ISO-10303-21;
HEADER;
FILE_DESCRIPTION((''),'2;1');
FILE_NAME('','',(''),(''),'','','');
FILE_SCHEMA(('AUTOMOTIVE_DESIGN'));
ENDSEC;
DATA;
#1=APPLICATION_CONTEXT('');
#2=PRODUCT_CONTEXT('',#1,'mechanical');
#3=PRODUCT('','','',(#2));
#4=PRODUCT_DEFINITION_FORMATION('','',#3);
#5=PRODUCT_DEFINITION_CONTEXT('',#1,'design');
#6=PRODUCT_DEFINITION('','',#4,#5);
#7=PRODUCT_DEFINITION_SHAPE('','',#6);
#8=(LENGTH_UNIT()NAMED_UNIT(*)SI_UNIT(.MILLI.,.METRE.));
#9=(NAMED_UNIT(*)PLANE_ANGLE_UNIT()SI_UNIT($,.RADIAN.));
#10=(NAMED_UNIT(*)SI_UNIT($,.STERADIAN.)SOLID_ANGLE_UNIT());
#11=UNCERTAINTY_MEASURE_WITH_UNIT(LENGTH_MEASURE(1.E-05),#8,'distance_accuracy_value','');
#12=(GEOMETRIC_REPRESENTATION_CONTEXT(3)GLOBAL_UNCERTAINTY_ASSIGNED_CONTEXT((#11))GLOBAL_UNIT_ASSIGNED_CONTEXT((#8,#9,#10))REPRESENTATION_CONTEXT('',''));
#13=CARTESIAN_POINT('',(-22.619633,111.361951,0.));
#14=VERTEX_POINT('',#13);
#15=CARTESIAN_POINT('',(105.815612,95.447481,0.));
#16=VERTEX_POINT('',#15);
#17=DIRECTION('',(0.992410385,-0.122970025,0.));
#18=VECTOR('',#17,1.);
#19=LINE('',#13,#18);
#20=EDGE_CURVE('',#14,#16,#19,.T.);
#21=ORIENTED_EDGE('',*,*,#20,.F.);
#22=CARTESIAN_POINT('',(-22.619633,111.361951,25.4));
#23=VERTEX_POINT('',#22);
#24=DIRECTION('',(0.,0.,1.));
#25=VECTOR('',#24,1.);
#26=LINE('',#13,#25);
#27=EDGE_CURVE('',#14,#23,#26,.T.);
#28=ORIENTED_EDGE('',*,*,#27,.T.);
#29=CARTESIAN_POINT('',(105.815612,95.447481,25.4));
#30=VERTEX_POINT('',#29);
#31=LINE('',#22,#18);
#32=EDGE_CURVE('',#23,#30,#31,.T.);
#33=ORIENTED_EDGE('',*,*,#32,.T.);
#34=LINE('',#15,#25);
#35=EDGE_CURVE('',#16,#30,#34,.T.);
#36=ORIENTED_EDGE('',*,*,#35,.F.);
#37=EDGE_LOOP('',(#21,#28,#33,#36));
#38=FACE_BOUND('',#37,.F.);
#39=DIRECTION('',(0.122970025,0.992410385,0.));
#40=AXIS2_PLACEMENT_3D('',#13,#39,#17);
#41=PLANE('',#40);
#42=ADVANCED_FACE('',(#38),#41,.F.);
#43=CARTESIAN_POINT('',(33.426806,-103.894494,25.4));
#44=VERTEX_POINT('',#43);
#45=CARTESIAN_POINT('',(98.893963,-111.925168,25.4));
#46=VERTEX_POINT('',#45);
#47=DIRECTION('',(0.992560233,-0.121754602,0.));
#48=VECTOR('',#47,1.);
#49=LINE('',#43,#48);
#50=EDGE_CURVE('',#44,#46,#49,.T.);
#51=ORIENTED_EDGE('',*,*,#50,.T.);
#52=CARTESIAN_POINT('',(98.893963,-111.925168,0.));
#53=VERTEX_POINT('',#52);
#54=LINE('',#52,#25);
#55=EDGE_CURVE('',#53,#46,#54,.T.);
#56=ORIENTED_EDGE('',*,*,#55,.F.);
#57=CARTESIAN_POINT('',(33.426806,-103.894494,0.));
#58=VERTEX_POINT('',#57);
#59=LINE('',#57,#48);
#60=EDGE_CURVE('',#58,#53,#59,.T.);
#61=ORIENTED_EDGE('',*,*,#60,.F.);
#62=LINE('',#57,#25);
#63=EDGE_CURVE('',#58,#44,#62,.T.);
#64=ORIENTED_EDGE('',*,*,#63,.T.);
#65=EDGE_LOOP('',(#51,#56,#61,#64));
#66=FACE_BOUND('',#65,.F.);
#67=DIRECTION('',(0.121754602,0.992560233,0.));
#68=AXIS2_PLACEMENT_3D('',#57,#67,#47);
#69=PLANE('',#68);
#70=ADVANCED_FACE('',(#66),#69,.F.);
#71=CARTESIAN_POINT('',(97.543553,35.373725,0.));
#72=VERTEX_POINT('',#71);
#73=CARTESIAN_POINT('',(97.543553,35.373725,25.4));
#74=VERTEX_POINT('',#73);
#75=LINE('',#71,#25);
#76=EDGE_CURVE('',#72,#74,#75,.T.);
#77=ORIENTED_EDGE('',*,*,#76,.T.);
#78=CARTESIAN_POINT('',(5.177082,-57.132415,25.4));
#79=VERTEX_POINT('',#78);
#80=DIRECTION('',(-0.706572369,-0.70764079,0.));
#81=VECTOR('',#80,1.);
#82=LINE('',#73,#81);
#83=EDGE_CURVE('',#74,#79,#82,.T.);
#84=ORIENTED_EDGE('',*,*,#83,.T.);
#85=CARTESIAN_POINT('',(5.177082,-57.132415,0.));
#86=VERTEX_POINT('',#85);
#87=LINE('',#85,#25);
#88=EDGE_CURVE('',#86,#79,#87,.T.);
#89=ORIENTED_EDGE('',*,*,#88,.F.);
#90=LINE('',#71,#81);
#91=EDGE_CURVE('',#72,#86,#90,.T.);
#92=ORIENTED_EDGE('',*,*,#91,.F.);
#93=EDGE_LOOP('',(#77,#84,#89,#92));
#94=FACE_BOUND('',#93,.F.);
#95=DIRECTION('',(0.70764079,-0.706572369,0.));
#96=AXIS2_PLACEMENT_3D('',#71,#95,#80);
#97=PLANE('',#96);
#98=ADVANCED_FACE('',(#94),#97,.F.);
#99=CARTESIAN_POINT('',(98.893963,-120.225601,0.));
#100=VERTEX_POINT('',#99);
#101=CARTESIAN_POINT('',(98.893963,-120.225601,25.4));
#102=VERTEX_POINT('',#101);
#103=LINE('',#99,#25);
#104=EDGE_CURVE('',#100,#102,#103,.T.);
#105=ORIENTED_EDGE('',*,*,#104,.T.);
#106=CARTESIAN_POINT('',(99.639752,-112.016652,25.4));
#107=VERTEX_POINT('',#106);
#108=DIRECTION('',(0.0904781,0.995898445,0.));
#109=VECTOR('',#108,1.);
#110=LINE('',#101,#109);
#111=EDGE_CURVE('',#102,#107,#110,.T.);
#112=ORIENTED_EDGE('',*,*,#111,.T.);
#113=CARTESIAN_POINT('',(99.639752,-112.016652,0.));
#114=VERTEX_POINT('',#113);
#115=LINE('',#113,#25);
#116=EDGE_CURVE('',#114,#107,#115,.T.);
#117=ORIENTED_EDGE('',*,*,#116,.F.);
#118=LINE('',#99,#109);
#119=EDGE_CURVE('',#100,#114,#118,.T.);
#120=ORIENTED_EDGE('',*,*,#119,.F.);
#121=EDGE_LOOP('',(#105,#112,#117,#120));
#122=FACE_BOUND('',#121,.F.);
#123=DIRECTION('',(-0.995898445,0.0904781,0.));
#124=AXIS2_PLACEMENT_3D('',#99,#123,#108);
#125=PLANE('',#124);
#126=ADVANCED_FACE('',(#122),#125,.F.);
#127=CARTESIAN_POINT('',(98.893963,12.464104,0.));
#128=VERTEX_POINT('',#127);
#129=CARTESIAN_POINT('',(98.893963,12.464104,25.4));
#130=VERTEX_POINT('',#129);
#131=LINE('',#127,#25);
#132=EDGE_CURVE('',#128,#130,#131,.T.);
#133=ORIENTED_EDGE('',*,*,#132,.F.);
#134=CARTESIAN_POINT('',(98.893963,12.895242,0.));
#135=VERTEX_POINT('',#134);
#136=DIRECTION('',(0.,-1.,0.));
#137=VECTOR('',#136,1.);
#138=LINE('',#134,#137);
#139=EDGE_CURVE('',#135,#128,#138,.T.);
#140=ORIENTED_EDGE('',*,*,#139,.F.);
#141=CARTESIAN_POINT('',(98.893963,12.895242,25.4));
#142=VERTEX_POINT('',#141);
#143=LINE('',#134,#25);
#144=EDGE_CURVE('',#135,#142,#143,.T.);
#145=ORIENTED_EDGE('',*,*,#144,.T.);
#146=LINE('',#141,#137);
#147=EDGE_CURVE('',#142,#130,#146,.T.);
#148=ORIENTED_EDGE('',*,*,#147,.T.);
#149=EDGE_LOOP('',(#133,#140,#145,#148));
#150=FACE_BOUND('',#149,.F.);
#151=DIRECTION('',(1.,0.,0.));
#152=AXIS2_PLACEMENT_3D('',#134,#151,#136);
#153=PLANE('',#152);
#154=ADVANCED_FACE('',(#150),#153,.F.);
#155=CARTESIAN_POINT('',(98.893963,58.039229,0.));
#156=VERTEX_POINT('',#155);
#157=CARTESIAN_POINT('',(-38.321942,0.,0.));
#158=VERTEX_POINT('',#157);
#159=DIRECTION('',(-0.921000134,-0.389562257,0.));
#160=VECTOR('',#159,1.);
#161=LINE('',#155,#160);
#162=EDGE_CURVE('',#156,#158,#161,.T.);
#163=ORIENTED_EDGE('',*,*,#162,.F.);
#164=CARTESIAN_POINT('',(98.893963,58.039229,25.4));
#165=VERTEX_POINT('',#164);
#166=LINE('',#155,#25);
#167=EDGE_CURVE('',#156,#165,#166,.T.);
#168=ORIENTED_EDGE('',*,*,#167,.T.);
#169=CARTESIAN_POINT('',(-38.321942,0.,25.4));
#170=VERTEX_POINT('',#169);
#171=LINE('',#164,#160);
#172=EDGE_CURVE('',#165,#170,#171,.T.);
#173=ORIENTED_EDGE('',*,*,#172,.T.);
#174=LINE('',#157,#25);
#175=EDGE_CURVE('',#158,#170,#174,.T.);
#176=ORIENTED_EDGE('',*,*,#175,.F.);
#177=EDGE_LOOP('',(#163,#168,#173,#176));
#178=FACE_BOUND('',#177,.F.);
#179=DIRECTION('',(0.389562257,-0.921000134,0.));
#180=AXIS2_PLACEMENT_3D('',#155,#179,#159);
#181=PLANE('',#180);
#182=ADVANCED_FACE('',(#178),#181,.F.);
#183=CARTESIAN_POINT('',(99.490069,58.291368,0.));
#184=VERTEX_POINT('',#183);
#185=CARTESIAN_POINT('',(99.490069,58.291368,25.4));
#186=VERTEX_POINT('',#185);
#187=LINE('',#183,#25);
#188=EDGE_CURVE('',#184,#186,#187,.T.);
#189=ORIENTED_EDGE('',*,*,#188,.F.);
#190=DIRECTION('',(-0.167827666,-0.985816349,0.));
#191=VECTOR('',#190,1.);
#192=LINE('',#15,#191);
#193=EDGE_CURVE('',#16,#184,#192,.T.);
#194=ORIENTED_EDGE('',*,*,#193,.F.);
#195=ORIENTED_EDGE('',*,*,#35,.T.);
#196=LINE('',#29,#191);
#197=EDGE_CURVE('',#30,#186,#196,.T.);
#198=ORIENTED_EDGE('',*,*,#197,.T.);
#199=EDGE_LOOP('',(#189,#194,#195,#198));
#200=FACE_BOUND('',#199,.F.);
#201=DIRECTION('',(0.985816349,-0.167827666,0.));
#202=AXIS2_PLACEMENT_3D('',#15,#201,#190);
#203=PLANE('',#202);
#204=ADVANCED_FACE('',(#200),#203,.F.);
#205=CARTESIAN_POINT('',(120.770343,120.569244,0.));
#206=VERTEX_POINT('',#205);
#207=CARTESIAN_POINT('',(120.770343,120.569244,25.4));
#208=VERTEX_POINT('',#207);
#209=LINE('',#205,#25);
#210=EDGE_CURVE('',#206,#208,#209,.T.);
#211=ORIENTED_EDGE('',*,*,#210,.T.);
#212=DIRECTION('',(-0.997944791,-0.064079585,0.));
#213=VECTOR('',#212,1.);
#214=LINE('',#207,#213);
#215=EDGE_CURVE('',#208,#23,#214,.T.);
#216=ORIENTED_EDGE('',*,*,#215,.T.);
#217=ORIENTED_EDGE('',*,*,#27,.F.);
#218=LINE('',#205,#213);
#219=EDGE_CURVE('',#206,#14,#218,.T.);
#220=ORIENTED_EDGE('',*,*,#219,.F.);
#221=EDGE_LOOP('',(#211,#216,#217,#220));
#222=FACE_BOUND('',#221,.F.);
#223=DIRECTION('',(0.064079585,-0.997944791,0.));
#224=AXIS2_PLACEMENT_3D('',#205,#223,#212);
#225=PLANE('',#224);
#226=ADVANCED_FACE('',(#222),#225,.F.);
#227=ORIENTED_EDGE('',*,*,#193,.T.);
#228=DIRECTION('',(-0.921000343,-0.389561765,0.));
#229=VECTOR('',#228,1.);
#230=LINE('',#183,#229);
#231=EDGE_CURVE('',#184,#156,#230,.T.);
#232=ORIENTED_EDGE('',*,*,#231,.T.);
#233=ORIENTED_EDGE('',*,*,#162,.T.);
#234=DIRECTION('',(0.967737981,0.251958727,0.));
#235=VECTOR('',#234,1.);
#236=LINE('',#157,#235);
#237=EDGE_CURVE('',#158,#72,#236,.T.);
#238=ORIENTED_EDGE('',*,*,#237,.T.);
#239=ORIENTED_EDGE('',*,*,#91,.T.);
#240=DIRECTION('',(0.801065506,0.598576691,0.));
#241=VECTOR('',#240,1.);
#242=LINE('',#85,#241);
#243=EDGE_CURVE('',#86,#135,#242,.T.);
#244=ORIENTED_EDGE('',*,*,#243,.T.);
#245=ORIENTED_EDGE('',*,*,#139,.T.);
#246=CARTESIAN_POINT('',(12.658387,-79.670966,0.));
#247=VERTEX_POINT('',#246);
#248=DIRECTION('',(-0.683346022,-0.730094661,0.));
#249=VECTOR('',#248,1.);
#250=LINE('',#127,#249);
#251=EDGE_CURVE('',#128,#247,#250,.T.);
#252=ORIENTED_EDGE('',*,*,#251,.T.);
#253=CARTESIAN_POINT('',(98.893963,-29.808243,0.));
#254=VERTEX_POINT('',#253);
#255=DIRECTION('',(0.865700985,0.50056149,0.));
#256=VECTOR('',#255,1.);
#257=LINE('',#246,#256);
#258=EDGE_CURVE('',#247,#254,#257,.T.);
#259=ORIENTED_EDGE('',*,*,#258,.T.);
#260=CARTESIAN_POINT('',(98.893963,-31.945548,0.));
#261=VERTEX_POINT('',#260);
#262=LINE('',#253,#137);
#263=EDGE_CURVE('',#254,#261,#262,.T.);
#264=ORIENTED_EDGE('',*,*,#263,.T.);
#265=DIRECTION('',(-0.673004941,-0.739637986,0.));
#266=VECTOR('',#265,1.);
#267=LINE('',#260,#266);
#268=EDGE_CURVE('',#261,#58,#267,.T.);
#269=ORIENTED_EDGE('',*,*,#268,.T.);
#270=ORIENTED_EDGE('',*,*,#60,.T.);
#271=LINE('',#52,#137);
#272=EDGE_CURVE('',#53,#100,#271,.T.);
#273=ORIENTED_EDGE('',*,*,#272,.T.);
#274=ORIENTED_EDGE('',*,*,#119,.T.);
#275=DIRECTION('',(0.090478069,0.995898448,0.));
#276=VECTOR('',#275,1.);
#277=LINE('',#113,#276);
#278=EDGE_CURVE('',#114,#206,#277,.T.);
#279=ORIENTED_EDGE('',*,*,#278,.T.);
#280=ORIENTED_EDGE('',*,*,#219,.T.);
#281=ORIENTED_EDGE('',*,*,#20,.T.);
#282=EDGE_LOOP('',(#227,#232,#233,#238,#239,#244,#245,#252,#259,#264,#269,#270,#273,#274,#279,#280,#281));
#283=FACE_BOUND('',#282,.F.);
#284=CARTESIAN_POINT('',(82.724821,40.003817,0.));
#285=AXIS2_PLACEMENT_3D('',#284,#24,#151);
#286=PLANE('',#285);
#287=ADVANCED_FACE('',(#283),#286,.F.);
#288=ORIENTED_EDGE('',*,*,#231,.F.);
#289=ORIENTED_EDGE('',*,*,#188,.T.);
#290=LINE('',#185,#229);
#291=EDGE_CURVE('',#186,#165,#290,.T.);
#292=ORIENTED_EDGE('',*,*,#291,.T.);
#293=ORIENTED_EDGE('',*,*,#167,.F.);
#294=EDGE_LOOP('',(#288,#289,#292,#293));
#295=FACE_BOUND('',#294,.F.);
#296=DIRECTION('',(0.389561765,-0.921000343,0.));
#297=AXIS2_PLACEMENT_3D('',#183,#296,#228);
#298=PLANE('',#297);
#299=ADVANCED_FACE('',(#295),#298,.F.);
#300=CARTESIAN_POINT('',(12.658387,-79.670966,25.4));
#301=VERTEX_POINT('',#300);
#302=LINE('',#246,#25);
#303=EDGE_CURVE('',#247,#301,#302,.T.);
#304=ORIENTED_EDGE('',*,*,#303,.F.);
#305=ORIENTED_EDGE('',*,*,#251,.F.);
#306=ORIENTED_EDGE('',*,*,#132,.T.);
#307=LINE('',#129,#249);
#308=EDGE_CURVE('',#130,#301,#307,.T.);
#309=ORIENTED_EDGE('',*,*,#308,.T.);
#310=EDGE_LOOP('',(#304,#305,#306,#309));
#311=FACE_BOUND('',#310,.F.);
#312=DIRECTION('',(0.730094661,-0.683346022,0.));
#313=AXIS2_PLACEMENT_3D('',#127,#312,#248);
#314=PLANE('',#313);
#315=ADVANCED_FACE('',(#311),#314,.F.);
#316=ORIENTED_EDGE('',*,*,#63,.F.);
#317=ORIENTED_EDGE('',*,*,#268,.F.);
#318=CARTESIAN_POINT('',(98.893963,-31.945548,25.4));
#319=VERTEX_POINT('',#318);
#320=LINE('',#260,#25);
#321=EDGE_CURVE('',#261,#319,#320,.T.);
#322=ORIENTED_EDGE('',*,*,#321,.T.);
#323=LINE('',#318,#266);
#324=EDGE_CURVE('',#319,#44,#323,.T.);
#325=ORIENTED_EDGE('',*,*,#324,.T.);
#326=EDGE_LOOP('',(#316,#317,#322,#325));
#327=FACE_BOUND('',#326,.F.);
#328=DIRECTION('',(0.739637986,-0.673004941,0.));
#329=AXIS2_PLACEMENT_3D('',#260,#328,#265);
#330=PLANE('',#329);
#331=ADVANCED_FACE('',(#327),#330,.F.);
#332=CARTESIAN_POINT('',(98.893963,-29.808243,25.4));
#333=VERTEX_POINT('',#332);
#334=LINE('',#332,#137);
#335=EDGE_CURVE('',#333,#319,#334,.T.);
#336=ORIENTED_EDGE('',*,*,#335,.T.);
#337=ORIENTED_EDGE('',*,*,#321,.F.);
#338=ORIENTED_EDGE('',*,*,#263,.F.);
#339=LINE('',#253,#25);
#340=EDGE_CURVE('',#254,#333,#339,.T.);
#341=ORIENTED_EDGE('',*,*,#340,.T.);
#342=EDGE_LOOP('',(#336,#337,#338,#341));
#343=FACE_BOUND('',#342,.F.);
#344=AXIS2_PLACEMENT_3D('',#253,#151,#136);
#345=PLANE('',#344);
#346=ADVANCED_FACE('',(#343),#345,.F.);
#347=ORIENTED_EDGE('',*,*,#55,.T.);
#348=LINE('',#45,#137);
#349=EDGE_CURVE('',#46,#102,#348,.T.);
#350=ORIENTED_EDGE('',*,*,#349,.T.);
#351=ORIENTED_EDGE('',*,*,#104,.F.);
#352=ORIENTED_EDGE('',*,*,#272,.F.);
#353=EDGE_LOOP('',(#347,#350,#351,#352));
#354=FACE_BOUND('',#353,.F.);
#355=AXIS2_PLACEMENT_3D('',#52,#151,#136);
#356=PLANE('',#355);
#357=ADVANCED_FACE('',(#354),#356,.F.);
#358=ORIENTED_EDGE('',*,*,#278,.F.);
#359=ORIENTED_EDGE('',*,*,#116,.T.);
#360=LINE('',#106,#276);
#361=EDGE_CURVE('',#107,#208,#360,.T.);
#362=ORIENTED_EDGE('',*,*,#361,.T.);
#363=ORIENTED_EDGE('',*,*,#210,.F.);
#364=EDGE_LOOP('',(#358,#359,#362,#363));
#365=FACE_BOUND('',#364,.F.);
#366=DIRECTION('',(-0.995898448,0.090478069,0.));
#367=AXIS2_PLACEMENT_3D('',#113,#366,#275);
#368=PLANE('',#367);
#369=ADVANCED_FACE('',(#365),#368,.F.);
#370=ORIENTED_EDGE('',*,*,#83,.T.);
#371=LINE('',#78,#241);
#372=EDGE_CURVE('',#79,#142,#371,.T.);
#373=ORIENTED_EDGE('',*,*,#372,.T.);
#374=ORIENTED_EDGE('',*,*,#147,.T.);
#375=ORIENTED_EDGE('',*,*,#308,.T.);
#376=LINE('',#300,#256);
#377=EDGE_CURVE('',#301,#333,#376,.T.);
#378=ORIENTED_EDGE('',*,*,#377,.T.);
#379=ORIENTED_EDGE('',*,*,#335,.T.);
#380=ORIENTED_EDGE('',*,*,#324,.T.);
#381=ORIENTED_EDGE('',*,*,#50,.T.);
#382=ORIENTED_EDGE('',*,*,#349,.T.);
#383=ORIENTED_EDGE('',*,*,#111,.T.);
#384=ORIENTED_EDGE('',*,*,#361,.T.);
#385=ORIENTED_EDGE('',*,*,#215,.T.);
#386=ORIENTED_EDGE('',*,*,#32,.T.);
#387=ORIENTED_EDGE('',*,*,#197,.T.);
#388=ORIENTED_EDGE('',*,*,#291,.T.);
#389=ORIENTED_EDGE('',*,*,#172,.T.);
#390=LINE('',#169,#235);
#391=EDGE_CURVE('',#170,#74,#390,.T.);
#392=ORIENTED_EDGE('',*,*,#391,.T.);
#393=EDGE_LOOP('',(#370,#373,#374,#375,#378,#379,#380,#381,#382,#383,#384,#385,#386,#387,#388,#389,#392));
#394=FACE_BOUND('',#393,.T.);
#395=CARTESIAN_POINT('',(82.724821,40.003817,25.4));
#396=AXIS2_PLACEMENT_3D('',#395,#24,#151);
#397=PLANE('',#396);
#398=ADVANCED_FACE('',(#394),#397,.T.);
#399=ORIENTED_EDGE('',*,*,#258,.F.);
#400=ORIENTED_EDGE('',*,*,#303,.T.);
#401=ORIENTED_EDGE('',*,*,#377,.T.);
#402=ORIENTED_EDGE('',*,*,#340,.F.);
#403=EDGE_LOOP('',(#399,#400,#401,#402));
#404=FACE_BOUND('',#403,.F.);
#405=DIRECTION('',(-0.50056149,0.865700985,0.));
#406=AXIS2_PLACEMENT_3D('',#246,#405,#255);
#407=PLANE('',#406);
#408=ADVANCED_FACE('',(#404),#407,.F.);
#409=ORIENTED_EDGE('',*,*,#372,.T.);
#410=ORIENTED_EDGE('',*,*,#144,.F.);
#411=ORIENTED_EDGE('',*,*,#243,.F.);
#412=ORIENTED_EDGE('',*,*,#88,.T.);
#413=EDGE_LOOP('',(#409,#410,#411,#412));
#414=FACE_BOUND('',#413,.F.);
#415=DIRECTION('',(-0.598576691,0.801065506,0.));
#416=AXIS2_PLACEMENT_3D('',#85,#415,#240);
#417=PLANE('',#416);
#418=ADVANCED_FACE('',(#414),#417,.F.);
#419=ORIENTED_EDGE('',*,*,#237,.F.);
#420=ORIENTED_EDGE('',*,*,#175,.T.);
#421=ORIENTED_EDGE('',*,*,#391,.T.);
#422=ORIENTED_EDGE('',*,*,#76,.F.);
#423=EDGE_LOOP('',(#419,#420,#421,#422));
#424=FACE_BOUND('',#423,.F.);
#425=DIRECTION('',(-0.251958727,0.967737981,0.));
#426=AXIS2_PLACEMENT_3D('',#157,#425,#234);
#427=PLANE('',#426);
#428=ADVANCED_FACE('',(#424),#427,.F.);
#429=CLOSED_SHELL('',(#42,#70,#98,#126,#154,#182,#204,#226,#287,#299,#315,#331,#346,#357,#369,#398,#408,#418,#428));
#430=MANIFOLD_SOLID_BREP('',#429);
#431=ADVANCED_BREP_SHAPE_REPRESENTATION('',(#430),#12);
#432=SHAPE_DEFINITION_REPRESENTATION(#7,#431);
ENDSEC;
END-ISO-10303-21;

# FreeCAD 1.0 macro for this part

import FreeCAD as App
import Part
import Sketcher

V = App.Vector
Q = App.Units.Quantity

doc = App.newDocument("Part")
params = doc.addObject("Spreadsheet::Sheet", "Params")
for row, (alias, value) in enumerate([
    ("pad1_length", "1 in"),
], start=1):
    params.set(f"A{row}", alias)
    params.set(f"B{row}", "=" + value)
    params.setAlias(f"B{row}", alias)

body = doc.addObject("PartDesign::Body", "Body")

# Sketch on XY plane
sketch1 = doc.addObject("Sketcher::SketchObject", "Sketch")
body.addObject(sketch1)
sketch1.AttachmentSupport = (doc.XY_Plane, [""])
sketch1.MapMode = "FlatFace"
sketch1.addGeometry(Part.LineSegment(V(99.49, 58.29, 0), V(98.89, 58.04, 0)), False)
sketch1.addGeometry(Part.LineSegment(V(98.89, 58.04, 0), V(-38.32, 0, 0)), False)
sketch1.addGeometry(Part.LineSegment(V(-38.32, 0, 0), V(97.54, 35.37, 0)), False)
sketch1.addGeometry(Part.LineSegment(V(97.54, 35.37, 0), V(5.18, -57.13, 0)), False)
sketch1.addGeometry(Part.LineSegment(V(5.18, -57.13, 0), V(98.89, 12.9, 0)), False)
sketch1.addGeometry(Part.LineSegment(V(98.89, 12.9, 0), V(98.89, 12.46, 0)), False)
sketch1.addGeometry(Part.LineSegment(V(98.89, 12.46, 0), V(12.66, -79.67, 0)), False)
sketch1.addGeometry(Part.LineSegment(V(12.66, -79.67, 0), V(98.89, -29.81, 0)), False)
sketch1.addGeometry(Part.LineSegment(V(98.89, -29.81, 0), V(98.89, -31.95, 0)), False)
sketch1.addGeometry(Part.LineSegment(V(98.89, -31.95, 0), V(33.43, -103.89, 0)), False)
sketch1.addGeometry(Part.LineSegment(V(33.43, -103.89, 0), V(98.89, -111.93, 0)), False)
sketch1.addGeometry(Part.LineSegment(V(98.89, -111.93, 0), V(98.89, -120.23, 0)), False)
sketch1.addGeometry(Part.LineSegment(V(98.89, -120.23, 0), V(99.64, -112.02, 0)), False)
sketch1.addGeometry(Part.LineSegment(V(99.64, -112.02, 0), V(120.77, 120.57, 0)), False)
sketch1.addGeometry(Part.LineSegment(V(120.77, 120.57, 0), V(-22.62, 111.36, 0)), False)
sketch1.addGeometry(Part.LineSegment(V(-22.62, 111.36, 0), V(105.82, 95.45, 0)), False)
sketch1.addGeometry(Part.LineSegment(V(105.82, 95.45, 0), V(99.49, 58.29, 0)), False)
sketch1.addConstraint(Sketcher.Constraint("Coincident", 0, 2, 1, 1))
sketch1.addConstraint(Sketcher.Constraint("Coincident", 1, 2, 2, 1))
sketch1.addConstraint(Sketcher.Constraint("Coincident", 2, 2, 3, 1))
sketch1.addConstraint(Sketcher.Constraint("Coincident", 3, 2, 4, 1))
sketch1.addConstraint(Sketcher.Constraint("Coincident", 4, 2, 5, 1))
sketch1.addConstraint(Sketcher.Constraint("Coincident", 5, 2, 6, 1))
sketch1.addConstraint(Sketcher.Constraint("Coincident", 6, 2, 7, 1))
sketch1.addConstraint(Sketcher.Constraint("Coincident", 7, 2, 8, 1))
sketch1.addConstraint(Sketcher.Constraint("Coincident", 8, 2, 9, 1))
sketch1.addConstraint(Sketcher.Constraint("Coincident", 9, 2, 10, 1))
sketch1.addConstraint(Sketcher.Constraint("Coincident", 10, 2, 11, 1))
sketch1.addConstraint(Sketcher.Constraint("Coincident", 11, 2, 12, 1))
sketch1.addConstraint(Sketcher.Constraint("Coincident", 12, 2, 13, 1))
sketch1.addConstraint(Sketcher.Constraint("Coincident", 13, 2, 14, 1))
sketch1.addConstraint(Sketcher.Constraint("Coincident", 14, 2, 15, 1))
sketch1.addConstraint(Sketcher.Constraint("Coincident", 15, 2, 16, 1))
sketch1.addConstraint(Sketcher.Constraint("Coincident", 16, 2, 0, 1))
sketch1.addConstraint(Sketcher.Constraint("Vertical", 5))
sketch1.addConstraint(Sketcher.Constraint("Vertical", 8))
sketch1.addConstraint(Sketcher.Constraint("Vertical", 11))
sketch1.addConstraint(Sketcher.Constraint("PointOnObject", 1, 2, -1))
sketch1.addConstraint(Sketcher.Constraint("Parallel", 0, 1))
sketch1.addConstraint(Sketcher.Constraint("Parallel", 12, 13))
sketch1.addConstraint(Sketcher.Constraint("Vertical", 0, 2, 4, 2))
sketch1.addConstraint(Sketcher.Constraint("Vertical", 5, 2, 7, 2))
sketch1.addConstraint(Sketcher.Constraint("Vertical", 8, 2, 10, 2))
sketch1.addConstraint(Sketcher.Constraint("DistanceX", 14, 2, 0, 2, Q("4.7839998 in")))
sketch1.addConstraint(Sketcher.Constraint("DistanceY", 11, 2, -1, 1, 120.225601))
sketch1.addConstraint(Sketcher.Constraint("DistanceY", 10, 2, 6, 2, 32.254202))
sketch1.addConstraint(Sketcher.Constraint("DistanceY", 4, 2, 13, 2, 107.674002))
sketch1.addConstraint(Sketcher.Constraint("Distance", 1, 148.98576))
sketch1.addConstraint(Sketcher.Constraint("Distance", 2, 140.394919))
sketch1.addConstraint(Sketcher.Constraint("Distance", 6, 126.196061))
sketch1.addConstraint(Sketcher.Constraint("Distance", 7, 99.613582))
sketch1.addConstraint(Sketcher.Constraint("Distance", 10, 65.957868))
sketch1.addConstraint(Sketcher.Constraint("Distance", 14, 143.685279))
sketch1.addConstraint(Sketcher.Constraint("DistanceY", 5, 2, 5, 1, 0.431138))
sketch1.addConstraint(Sketcher.Constraint("DistanceY", 8, 2, 8, 1, 2.137305))
sketch1.addConstraint(Sketcher.Constraint("DistanceY", 11, 2, 11, 1, 8.300433))
sketch1.addConstraint(Sketcher.Constraint("DistanceY", -1, 1, 0, 2, 58.039229))
sketch1.addConstraint(Sketcher.Constraint("DistanceX", -1, 1, 12, 2, 99.639752))
sketch1.addConstraint(Sketcher.Constraint("DistanceY", 12, 2, -1, 1, 112.016652))
sketch1.addConstraint(Sketcher.Constraint("DistanceY", -1, 1, 14, 2, 111.361951))
sketch1.addConstraint(Sketcher.Constraint("DistanceX", -1, 1, 15, 2, 105.815612))
sketch1.addConstraint(Sketcher.Constraint("DistanceY", -1, 1, 15, 2, 95.447481))
sketch1.addConstraint(Sketcher.Constraint("DistanceX", -1, 1, 16, 2, 99.490069))
sketch1.addConstraint(Sketcher.Constraint("DistanceX", 2, 2, 0, 2, 1.35041))
sketch1.addConstraint(Sketcher.Constraint("DistanceX", 3, 2, 2, 2, 92.366471))
sketch1.addConstraint(Sketcher.Constraint("DistanceY", 3, 2, 2, 2, 92.50614))
sketch1.addConstraint(Sketcher.Constraint("DistanceY", 5, 2, 2, 2, 22.909621))
sketch1.addConstraint(Sketcher.Constraint("DistanceX", 6, 2, 9, 2, 20.768419))
pad1 = doc.addObject("PartDesign::Pad", "Pad")
body.addObject(pad1)
pad1.Profile = sketch1
pad1.setExpression("Length", "Params.pad1_length")

doc.recompute()
